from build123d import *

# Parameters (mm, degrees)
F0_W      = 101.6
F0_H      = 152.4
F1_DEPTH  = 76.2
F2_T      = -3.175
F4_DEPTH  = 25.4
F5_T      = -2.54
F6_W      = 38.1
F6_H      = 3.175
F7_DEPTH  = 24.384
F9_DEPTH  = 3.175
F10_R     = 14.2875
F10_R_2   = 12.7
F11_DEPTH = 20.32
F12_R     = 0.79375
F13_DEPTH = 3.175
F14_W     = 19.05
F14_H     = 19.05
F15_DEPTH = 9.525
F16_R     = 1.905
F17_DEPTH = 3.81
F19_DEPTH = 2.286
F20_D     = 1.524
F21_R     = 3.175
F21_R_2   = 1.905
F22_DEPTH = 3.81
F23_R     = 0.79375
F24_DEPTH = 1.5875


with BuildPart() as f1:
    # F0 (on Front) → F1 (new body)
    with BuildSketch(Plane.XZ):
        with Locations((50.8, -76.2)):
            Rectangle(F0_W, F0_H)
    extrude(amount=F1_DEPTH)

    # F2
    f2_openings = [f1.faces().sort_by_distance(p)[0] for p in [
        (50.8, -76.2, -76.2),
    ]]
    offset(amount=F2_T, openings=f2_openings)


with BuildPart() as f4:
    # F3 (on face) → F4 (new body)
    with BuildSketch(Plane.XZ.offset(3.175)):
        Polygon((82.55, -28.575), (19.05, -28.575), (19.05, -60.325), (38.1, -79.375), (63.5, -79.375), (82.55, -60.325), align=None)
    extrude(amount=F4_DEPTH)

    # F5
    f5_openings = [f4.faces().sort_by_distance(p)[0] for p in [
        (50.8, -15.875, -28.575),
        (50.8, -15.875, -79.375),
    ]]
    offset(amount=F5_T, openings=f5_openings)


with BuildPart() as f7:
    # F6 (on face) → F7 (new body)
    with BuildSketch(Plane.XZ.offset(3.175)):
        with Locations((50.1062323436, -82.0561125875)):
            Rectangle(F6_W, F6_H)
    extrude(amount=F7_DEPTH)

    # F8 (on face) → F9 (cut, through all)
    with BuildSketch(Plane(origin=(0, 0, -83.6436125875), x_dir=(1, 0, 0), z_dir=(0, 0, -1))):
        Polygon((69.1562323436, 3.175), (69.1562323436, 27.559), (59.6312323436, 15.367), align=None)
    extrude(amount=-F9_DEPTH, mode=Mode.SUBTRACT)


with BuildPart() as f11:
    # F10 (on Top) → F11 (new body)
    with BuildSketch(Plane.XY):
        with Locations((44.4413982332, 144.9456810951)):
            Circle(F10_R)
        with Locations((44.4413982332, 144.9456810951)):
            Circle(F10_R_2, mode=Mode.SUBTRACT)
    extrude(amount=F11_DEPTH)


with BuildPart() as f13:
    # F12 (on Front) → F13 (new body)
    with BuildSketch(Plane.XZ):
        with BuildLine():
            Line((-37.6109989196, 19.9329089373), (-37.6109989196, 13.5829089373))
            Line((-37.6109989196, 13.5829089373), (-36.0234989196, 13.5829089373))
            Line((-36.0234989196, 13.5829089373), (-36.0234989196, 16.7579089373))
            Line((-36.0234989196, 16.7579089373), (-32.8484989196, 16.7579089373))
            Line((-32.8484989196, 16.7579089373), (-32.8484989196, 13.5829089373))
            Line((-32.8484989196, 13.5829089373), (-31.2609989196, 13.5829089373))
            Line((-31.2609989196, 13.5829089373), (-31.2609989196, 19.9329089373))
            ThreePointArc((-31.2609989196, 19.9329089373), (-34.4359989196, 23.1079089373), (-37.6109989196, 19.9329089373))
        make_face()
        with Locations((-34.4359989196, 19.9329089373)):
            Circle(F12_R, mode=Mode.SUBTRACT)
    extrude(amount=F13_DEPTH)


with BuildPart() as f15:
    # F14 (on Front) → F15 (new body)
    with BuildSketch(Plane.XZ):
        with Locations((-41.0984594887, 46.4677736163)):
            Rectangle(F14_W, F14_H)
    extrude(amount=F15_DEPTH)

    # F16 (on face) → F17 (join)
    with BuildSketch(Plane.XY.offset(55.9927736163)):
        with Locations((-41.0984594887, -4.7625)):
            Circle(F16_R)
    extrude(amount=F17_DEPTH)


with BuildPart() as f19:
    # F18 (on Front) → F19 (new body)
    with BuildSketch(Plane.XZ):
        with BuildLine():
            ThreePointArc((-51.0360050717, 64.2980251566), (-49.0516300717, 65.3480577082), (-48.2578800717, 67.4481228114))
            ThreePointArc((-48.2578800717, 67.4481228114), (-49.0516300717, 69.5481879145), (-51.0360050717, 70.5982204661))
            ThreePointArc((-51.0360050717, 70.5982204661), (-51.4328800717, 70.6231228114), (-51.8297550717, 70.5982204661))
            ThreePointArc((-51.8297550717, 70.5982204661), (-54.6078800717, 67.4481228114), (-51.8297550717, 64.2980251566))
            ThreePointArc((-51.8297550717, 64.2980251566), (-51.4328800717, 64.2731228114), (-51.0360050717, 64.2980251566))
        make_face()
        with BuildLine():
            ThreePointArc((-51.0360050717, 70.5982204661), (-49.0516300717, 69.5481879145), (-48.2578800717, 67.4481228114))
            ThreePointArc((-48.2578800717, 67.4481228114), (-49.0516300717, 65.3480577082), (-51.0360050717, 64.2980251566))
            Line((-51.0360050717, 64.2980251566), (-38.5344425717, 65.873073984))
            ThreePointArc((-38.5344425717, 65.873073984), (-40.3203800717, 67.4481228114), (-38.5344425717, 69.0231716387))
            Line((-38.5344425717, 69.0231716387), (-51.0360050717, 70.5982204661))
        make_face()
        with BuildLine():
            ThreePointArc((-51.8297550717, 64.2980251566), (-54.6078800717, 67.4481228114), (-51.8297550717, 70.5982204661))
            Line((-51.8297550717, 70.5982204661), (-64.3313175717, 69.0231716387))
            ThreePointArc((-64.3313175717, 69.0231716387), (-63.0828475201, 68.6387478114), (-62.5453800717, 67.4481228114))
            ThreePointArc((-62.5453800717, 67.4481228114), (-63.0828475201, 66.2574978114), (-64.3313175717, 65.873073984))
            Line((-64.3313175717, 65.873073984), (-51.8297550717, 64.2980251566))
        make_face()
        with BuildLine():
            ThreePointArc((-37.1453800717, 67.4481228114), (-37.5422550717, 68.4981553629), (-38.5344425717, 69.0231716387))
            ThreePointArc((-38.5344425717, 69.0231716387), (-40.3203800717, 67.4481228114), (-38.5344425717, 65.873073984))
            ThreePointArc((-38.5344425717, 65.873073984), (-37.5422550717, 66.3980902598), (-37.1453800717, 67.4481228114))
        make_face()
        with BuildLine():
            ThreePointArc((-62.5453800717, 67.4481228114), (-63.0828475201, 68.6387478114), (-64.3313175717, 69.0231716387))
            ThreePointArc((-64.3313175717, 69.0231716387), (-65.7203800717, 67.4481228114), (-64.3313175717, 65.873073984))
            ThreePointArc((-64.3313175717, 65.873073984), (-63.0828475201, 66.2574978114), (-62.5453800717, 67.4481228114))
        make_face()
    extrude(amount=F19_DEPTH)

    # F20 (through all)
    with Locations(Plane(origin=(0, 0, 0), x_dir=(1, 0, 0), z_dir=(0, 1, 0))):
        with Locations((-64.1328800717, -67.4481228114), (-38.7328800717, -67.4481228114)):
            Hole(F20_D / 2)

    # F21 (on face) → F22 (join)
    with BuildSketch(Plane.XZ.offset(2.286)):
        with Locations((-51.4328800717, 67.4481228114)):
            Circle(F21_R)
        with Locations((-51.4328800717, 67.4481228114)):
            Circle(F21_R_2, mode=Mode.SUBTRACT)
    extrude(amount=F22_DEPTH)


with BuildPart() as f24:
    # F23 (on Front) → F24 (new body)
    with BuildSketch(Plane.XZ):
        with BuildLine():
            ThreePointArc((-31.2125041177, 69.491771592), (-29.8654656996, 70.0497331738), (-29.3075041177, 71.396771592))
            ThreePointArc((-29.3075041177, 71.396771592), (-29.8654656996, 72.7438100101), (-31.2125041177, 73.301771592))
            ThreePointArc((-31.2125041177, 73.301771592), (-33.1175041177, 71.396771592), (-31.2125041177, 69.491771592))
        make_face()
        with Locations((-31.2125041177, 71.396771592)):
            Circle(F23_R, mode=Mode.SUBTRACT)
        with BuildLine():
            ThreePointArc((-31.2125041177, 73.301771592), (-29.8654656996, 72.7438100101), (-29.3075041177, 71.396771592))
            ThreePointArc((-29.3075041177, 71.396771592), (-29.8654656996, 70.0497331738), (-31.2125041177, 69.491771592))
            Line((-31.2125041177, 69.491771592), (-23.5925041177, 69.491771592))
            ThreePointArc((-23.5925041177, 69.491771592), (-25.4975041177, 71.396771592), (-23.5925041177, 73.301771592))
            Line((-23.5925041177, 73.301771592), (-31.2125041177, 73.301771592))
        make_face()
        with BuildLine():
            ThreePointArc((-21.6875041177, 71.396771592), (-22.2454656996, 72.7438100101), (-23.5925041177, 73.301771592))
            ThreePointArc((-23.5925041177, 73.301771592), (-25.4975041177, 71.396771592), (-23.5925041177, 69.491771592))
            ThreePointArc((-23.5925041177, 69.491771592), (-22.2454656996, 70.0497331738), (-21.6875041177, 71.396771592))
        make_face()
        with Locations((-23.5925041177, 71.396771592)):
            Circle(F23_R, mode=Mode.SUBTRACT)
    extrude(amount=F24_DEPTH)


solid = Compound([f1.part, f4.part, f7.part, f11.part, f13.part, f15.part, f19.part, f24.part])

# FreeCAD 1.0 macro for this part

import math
import FreeCAD as App
import Part
import Sketcher
Q = App.Units.Quantity


def faces_at(feature, points):
    """Names of the faces that lie closest to the given points."""
    faces = feature.Shape.Faces
    near = lambda p: min(range(len(faces)), key=lambda i: faces[i].distToShape(Part.Vertex(*p))[0])
    return sorted({f"Face{near(p) + 1}" for p in points})


def add_polygon(sketch, points):
    """Adds a closed chain of lines whose ends are joined by coincident constraints."""
    first, n = sketch.GeometryCount, len(points)
    for a, b in zip(points, points[1:] + points[:1]):
        sketch.addGeometry(Part.LineSegment(App.Vector(*a, 0), App.Vector(*b, 0)), False)
    for i in range(n):
        sketch.addConstraint(Sketcher.Constraint("Coincident", first + i, 2, first + (i + 1) % n, 1))

doc = App.newDocument("Part")
body = doc.addObject("PartDesign::Body", "Body")

sketch1 = body.newObject("Sketcher::SketchObject", "Sketch")
sketch1.AttachmentSupport = (doc.getObject("XZ_Plane"), [""])
sketch1.MapMode = "FlatFace"
add_polygon(sketch1, [(0, 0), (0, -152), (102, -152), (102, 0)])
sketch1.addConstraint([
    Sketcher.Constraint("Vertical", 0),
    Sketcher.Constraint("Horizontal", 1),
    Sketcher.Constraint("Vertical", 2),
    Sketcher.Constraint("Horizontal", 3),
    Sketcher.Constraint("Coincident", 3, 2, -1, 1),
    Sketcher.Constraint("DistanceX", 1, 1, 1, 2, Q("4 in")),
    Sketcher.Constraint("DistanceY", 0, 2, 0, 1, Q("6 in")),
])
pad1 = body.newObject("PartDesign::Pad", "Pad")
pad1.Profile = sketch1
pad1.Length = Q("3 in")
doc.recompute()

thickness = body.newObject("PartDesign::Thickness", "Thickness")
thickness.Base = (pad1, faces_at(pad1, [(50.8, -76.2, -76.2)]))
thickness.Value = Q("0.125 in")
thickness.Reversed = True
thickness.Join = "Arc"
body2 = doc.addObject("PartDesign::Body", "Body001")

sketch2 = body2.newObject("Sketcher::SketchObject", "Sketch001")
sketch2.AttachmentSupport = (doc.getObject("XZ_Plane001"), [""])
sketch2.MapMode = "FlatFace"
sketch2.AttachmentOffset = App.Placement(App.Vector(0, 0, 0.125 * 25.4), App.Rotation())
add_polygon(sketch2, [(83, -29), (19, -29), (19, -60), (38, -79), (64, -79), (83, -60)])
sketch2.addConstraint([
    Sketcher.Constraint("Horizontal", 0),
    Sketcher.Constraint("Vertical", 1),
    Sketcher.Constraint("Horizontal", 3),
    Sketcher.Constraint("Vertical", 5),
    Sketcher.Constraint("Perpendicular", 2, 4),
    Sketcher.Constraint("Horizontal", 1, 2, 4, 2),
    Sketcher.Constraint("Equal", 2, 4),
    Sketcher.Constraint("DistanceX", 3, 1, 3, 2, Q("1 in")),
    Sketcher.Constraint("DistanceX", 0, 2, 0, 1, Q("2.5 in")),
    Sketcher.Constraint("DistanceY", 2, 2, 0, 2, Q("2 in")),
    Sketcher.Constraint("DistanceX", -1, 1, 2, 2, Q("1.5 in")),
    Sketcher.Constraint("DistanceY", 0, 2, -1, 1, Q("1.125 in")),
])
pad2 = body2.newObject("PartDesign::Pad", "Pad001")
pad2.Profile = sketch2
pad2.Length = Q("1 in")
doc.recompute()

thickness2 = body2.newObject("PartDesign::Thickness", "Thickness001")
thickness2.Base = (pad2, faces_at(pad2, [(50.8, -15.875, -28.575), (50.8, -15.875, -79.375)]))
thickness2.Value = Q("0.1 in")
thickness2.Reversed = True
thickness2.Join = "Arc"
body3 = doc.addObject("PartDesign::Body", "Body002")

sketch3 = body3.newObject("Sketcher::SketchObject", "Sketch002")
sketch3.AttachmentSupport = (doc.getObject("XZ_Plane002"), [""])
sketch3.MapMode = "FlatFace"
sketch3.AttachmentOffset = App.Placement(App.Vector(0, 0, 0.125 * 25.4), App.Rotation())
add_polygon(sketch3, [(31.1, -80.5), (31.1, -83.6), (69.2, -83.6), (69.2, -80.5)])
sketch3.addConstraint([
    Sketcher.Constraint("Vertical", 0),
    Sketcher.Constraint("Horizontal", 1),
    Sketcher.Constraint("Vertical", 2),
    Sketcher.Constraint("Horizontal", 3),
    Sketcher.Constraint("DistanceX", 1, 1, 1, 2, Q("1.5 in")),
    Sketcher.Constraint("DistanceY", 0, 2, 0, 1, Q("0.125 in")),
    Sketcher.Constraint("DistanceX", -1, 1, 0, 2, 31.056232),
    Sketcher.Constraint("DistanceY", 0, 2, -1, 1, 83.643613),
])
pad3 = body3.newObject("PartDesign::Pad", "Pad002")
pad3.Profile = sketch3
pad3.Length = Q("0.96 in")

sketch4 = body3.newObject("Sketcher::SketchObject", "Sketch003")
sketch4.AttachmentSupport = (doc.getObject("XY_Plane002"), [""])
sketch4.MapMode = "FlatFace"
sketch4.AttachmentOffset = App.Placement(App.Vector(0, 0, -83.643613), App.Rotation())
add_polygon(sketch4, [(69, -3), (69, -28), (60, -15)])
sketch4.addConstraint([
    Sketcher.Constraint("Vertical", 0),
    Sketcher.Constraint("Equal", 1, 2),
    Sketcher.Constraint("DistanceY", 0, 2, 0, 1, Q("0.96 in")),
    Sketcher.Constraint("DistanceY", 0, 2, -1, 1, Q("1.085 in")),
    Sketcher.Constraint("DistanceX", 1, 2, 0, 2, Q("0.375 in")),
    Sketcher.Constraint("DistanceX", -1, 1, 0, 2, 69.156232),
])
pocket1 = body3.newObject("PartDesign::Pocket", "Pocket")
pocket1.Profile = sketch4
pocket1.Type = "ThroughAll"
pocket1.Reversed = True
body4 = doc.addObject("PartDesign::Body", "Body003")

sketch5 = body4.newObject("Sketcher::SketchObject", "Sketch004")
sketch5.AttachmentSupport = (doc.getObject("XY_Plane003"), [""])
sketch5.MapMode = "FlatFace"
sketch5.addGeometry([
    Part.Circle(App.Vector(44, 145, 0), App.Vector(0, 0, 1), 14),
    Part.Circle(App.Vector(44, 145, 0), App.Vector(0, 0, 1), 13),
], False)
sketch5.addConstraint([
    Sketcher.Constraint("Coincident", 1, 3, 0, 3),
    Sketcher.Constraint("Diameter", 1, Q("1 in")),
    Sketcher.Constraint("Diameter", 0, Q("1.125 in")),
    Sketcher.Constraint("DistanceX", -1, 1, 0, 3, 44.441398),
    Sketcher.Constraint("DistanceY", -1, 1, 0, 3, 144.945681),
])
pad4 = body4.newObject("PartDesign::Pad", "Pad003")
pad4.Profile = sketch5
pad4.Length = Q("0.8 in")
body5 = doc.addObject("PartDesign::Body", "Body004")

sketch6 = body5.newObject("Sketcher::SketchObject", "Sketch005")
sketch6.AttachmentSupport = (doc.getObject("XZ_Plane004"), [""])
sketch6.MapMode = "FlatFace"
sketch6.addGeometry([
    Part.LineSegment(App.Vector(-37.6, 19.9, 0), App.Vector(-37.6, 13.6, 0)),
    Part.LineSegment(App.Vector(-37.6, 13.6, 0), App.Vector(-36, 13.6, 0)),
    Part.LineSegment(App.Vector(-36, 13.6, 0), App.Vector(-36, 16.8, 0)),
    Part.LineSegment(App.Vector(-36, 16.8, 0), App.Vector(-32.8, 16.8, 0)),
    Part.LineSegment(App.Vector(-32.8, 16.8, 0), App.Vector(-32.8, 13.6, 0)),
    Part.LineSegment(App.Vector(-32.8, 13.6, 0), App.Vector(-31.3, 13.6, 0)),
    Part.LineSegment(App.Vector(-31.3, 13.6, 0), App.Vector(-31.3, 19.9, 0)),
    Part.ArcOfCircle(Part.Circle(App.Vector(-34.4, 19.9, 0), App.Vector(0, 0, 1), 3.2), math.radians(0), math.radians(180)),
    Part.Circle(App.Vector(-34.4, 19.9, 0), App.Vector(0, 0, 1), 0.8),
], False)
sketch6.addConstraint([
    Sketcher.Constraint("Coincident", 0, 2, 1, 1),
    Sketcher.Constraint("Coincident", 1, 2, 2, 1),
    Sketcher.Constraint("Coincident", 2, 2, 3, 1),
    Sketcher.Constraint("Coincident", 3, 2, 4, 1),
    Sketcher.Constraint("Coincident", 4, 2, 5, 1),
    Sketcher.Constraint("Coincident", 5, 2, 6, 1),
    Sketcher.Constraint("Tangent", 6, 2, 7, 1),
    Sketcher.Constraint("Tangent", 7, 2, 0, 1),
    Sketcher.Constraint("Vertical", 0),
    Sketcher.Constraint("Horizontal", 1),
    Sketcher.Constraint("Vertical", 2),
    Sketcher.Constraint("Horizontal", 3),
    Sketcher.Constraint("Vertical", 4),
    Sketcher.Constraint("Horizontal", 5),
    Sketcher.Constraint("Vertical", 6),
    Sketcher.Constraint("Coincident", 8, 3, 7, 3),
    Sketcher.Constraint("Horizontal", 1, 2, 4, 2),
    Sketcher.Constraint("Equal", 1, 5),
    Sketcher.Constraint("Equal", 3, 2),
    Sketcher.Constraint("Diameter", 8, Q("0.0625 in")),
    Sketcher.Constraint("Radius", 7, Q("0.125 in")),
    Sketcher.Constraint("DistanceY", 0, 2, 0, 1, Q("0.25 in")),
    Sketcher.Constraint("DistanceX", 1, 1, 1, 2, Q("0.0625 in")),
    Sketcher.Constraint("DistanceX", 7, 3, -1, 1, 34.435999),
    Sketcher.Constraint("DistanceY", -1, 1, 7, 3, 19.932909),
])
pad5 = body5.newObject("PartDesign::Pad", "Pad004")
pad5.Profile = sketch6
pad5.Length = Q("0.125 in")
body6 = doc.addObject("PartDesign::Body", "Body005")

sketch7 = body6.newObject("Sketcher::SketchObject", "Sketch006")
sketch7.AttachmentSupport = (doc.getObject("XZ_Plane005"), [""])
sketch7.MapMode = "FlatFace"
add_polygon(sketch7, [(-51, 56), (-51, 37), (-32, 37), (-32, 56)])
sketch7.addConstraint([
    Sketcher.Constraint("Vertical", 0),
    Sketcher.Constraint("Horizontal", 1),
    Sketcher.Constraint("Vertical", 2),
    Sketcher.Constraint("Horizontal", 3),
    Sketcher.Constraint("Equal", 3, 0),
    Sketcher.Constraint("DistanceX", 1, 1, 1, 2, Q("0.75 in")),
    Sketcher.Constraint("DistanceX", 0, 2, -1, 1, 50.623459),
    Sketcher.Constraint("DistanceY", -1, 1, 0, 2, 36.942774),
])
pad6 = body6.newObject("PartDesign::Pad", "Pad005")
pad6.Profile = sketch7
pad6.Length = Q("0.375 in")

sketch8 = body6.newObject("Sketcher::SketchObject", "Sketch007")
sketch8.AttachmentSupport = (doc.getObject("XY_Plane005"), [""])
sketch8.MapMode = "FlatFace"
sketch8.AttachmentOffset = App.Placement(App.Vector(0, 0, 55.992774), App.Rotation())
sketch8.addGeometry(Part.Circle(App.Vector(-41.1, -4.8, 0), App.Vector(0, 0, 1), 1.9), False)
sketch8.addConstraint([
    Sketcher.Constraint("Diameter", 0, Q("0.15 in")),
    Sketcher.Constraint("DistanceY", 0, 3, -1, 1, Q("0.1875 in")),
    Sketcher.Constraint("DistanceX", 0, 3, -1, 1, 41.098459),
])
pad7 = body6.newObject("PartDesign::Pad", "Pad006")
pad7.Profile = sketch8
pad7.Length = Q("0.15 in")
body7 = doc.addObject("PartDesign::Body", "Body006")

sketch9 = body7.newObject("Sketcher::SketchObject", "Sketch008")
sketch9.AttachmentSupport = (doc.getObject("XZ_Plane006"), [""])
sketch9.MapMode = "FlatFace"
sketch9.addGeometry([
    Part.ArcOfCircle(Part.Circle(App.Vector(-51.4, 67.4, 0), App.Vector(0, 0, 1), 3.2), math.radians(82.82), math.radians(97.18)),
    Part.LineSegment(App.Vector(-51.8, 70.6, 0), App.Vector(-64.3, 69, 0)),
    Part.ArcOfCircle(Part.Circle(App.Vector(-64.1, 67.4, 0), App.Vector(0, 0, 1), 1.6), math.radians(97), math.radians(263)),
    Part.LineSegment(App.Vector(-64.3, 65.9, 0), App.Vector(-51.8, 64.3, 0)),
    Part.ArcOfCircle(Part.Circle(App.Vector(-51.4, 67.4, 0), App.Vector(0, 0, 1), 3.2), math.radians(-97.18), math.radians(-82.82)),
    Part.LineSegment(App.Vector(-51, 64.3, 0), App.Vector(-38.5, 65.9, 0)),
    Part.ArcOfCircle(Part.Circle(App.Vector(-38.7, 67.4, 0), App.Vector(0, 0, 1), 1.6), math.radians(-83), math.radians(0)),
    Part.ArcOfCircle(Part.Circle(App.Vector(-38.7, 67.4, 0), App.Vector(0, 0, 1), 1.6), math.radians(0), math.radians(83)),
    Part.LineSegment(App.Vector(-38.5, 69, 0), App.Vector(-51, 70.6, 0)),
], False)
sketch9.addConstraint([
    Sketcher.Constraint("Tangent", 0, 2, 1, 1),
    Sketcher.Constraint("Tangent", 1, 2, 2, 1),
    Sketcher.Constraint("Tangent", 2, 2, 3, 1),
    Sketcher.Constraint("Tangent", 3, 2, 4, 1),
    Sketcher.Constraint("Tangent", 4, 2, 5, 1),
    Sketcher.Constraint("Tangent", 5, 2, 6, 1),
    Sketcher.Constraint("Tangent", 6, 2, 7, 1),
    Sketcher.Constraint("Tangent", 7, 2, 8, 1),
    Sketcher.Constraint("Tangent", 8, 2, 0, 1),
    Sketcher.Constraint("Coincident", 4, 3, 0, 3),
    Sketcher.Constraint("Equal", 0, 4),
    Sketcher.Constraint("Equal", 2, 6),
    Sketcher.Constraint("Equal", 6, 7),
    Sketcher.Constraint("Parallel", 1, 5),
    Sketcher.Constraint("Parallel", 3, 8),
    Sketcher.Constraint("Horizontal", 0, 3, 2, 3),
    Sketcher.Constraint("Horizontal", 7, 3, 6, 2),
    Sketcher.Constraint("Radius", 0, Q("0.125 in")),
    Sketcher.Constraint("Radius", 2, Q("0.0625 in")),
    Sketcher.Constraint("DistanceX", 2, 3, 6, 3, Q("1 in")),
    Sketcher.Constraint("DistanceX", 0, 3, -1, 1, 51.43288),
    Sketcher.Constraint("DistanceY", -1, 1, 0, 2, 70.59822),
])
pad8 = body7.newObject("PartDesign::Pad", "Pad007")
pad8.Profile = sketch9
pad8.Length = Q("0.09 in")

sketch10 = body7.newObject("Sketcher::SketchObject", "Sketch009")
sketch10.AttachmentSupport = (doc.getObject("XZ_Plane006"), [""])
sketch10.MapMode = "FlatFace"
sketch10.addGeometry([
    Part.Circle(App.Vector(-64.1, 67.4, 0), App.Vector(0, 0, 1), 0.8),
    Part.Circle(App.Vector(-38.7, 67.4, 0), App.Vector(0, 0, 1), 0.8),
], False)
sketch10.addConstraint([
    Sketcher.Constraint("Equal", 0, 1),
    Sketcher.Constraint("Horizontal", 0, 3, 1, 3),
    Sketcher.Constraint("Diameter", 0, Q("0.06 in")),
    Sketcher.Constraint("DistanceX", 0, 3, 1, 3, Q("1 in")),
    Sketcher.Constraint("DistanceX", 0, 3, -1, 1, 64.13288),
    Sketcher.Constraint("DistanceY", -1, 1, 0, 3, 67.448123),
])
doc.recompute()
hole = body7.newObject("PartDesign::Hole", "Hole")
hole.Profile = sketch10
hole.ThreadType = "None"
hole.Diameter = Q("0.06 in")
hole.DepthType = "ThroughAll"
hole.Reversed = True

sketch11 = body7.newObject("Sketcher::SketchObject", "Sketch010")
sketch11.AttachmentSupport = (doc.getObject("XZ_Plane006"), [""])
sketch11.MapMode = "FlatFace"
sketch11.AttachmentOffset = App.Placement(App.Vector(0, 0, 0.09 * 25.4), App.Rotation())
sketch11.addGeometry([
    Part.Circle(App.Vector(-51.4, 67.4, 0), App.Vector(0, 0, 1), 3.2),
    Part.Circle(App.Vector(-51.4, 67.4, 0), App.Vector(0, 0, 1), 1.9),
], False)
sketch11.addConstraint([
    Sketcher.Constraint("Coincident", 1, 3, 0, 3),
    Sketcher.Constraint("Diameter", 0, Q("0.25 in")),
    Sketcher.Constraint("Diameter", 1, Q("0.15 in")),
    Sketcher.Constraint("DistanceX", 0, 3, -1, 1, 51.43288),
    Sketcher.Constraint("DistanceY", -1, 1, 0, 3, 67.448123),
])
pad9 = body7.newObject("PartDesign::Pad", "Pad008")
pad9.Profile = sketch11
pad9.Length = Q("0.15 in")
body8 = doc.addObject("PartDesign::Body", "Body007")

sketch12 = body8.newObject("Sketcher::SketchObject", "Sketch011")
sketch12.AttachmentSupport = (doc.getObject("XZ_Plane007"), [""])
sketch12.MapMode = "FlatFace"
sketch12.addGeometry([
    Part.ArcOfCircle(Part.Circle(App.Vector(-31.2, 71.4, 0), App.Vector(0, 0, 1), 1.9), math.radians(90), math.radians(270)),
    Part.LineSegment(App.Vector(-31.2, 69.5, 0), App.Vector(-23.6, 69.5, 0)),
    Part.ArcOfCircle(Part.Circle(App.Vector(-23.6, 71.4, 0), App.Vector(0, 0, 1), 1.9), math.radians(-90), math.radians(0)),
    Part.ArcOfCircle(Part.Circle(App.Vector(-23.6, 71.4, 0), App.Vector(0, 0, 1), 1.9), math.radians(0), math.radians(90)),
    Part.LineSegment(App.Vector(-23.6, 73.3, 0), App.Vector(-31.2, 73.3, 0)),
    Part.Circle(App.Vector(-31.2, 71.4, 0), App.Vector(0, 0, 1), 0.8),
    Part.Circle(App.Vector(-23.6, 71.4, 0), App.Vector(0, 0, 1), 0.8),
], False)
sketch12.addConstraint([
    Sketcher.Constraint("Tangent", 0, 2, 1, 1),
    Sketcher.Constraint("Tangent", 1, 2, 2, 1),
    Sketcher.Constraint("Tangent", 2, 2, 3, 1),
    Sketcher.Constraint("Tangent", 3, 2, 4, 1),
    Sketcher.Constraint("Tangent", 4, 2, 0, 1),
    Sketcher.Constraint("Horizontal", 1),
    Sketcher.Constraint("Horizontal", 4),
    Sketcher.Constraint("Coincident", 5, 3, 0, 3),
    Sketcher.Constraint("Coincident", 6, 3, 2, 3),
    Sketcher.Constraint("Equal", 0, 2),
    Sketcher.Constraint("Equal", 5, 6),
    Sketcher.Constraint("Horizontal", 6, 3, 2, 2),
    Sketcher.Constraint("Diameter", 5, Q("0.0625 in")),
    Sketcher.Constraint("DistanceX", 1, 1, 1, 2, Q("0.3 in")),
    Sketcher.Constraint("Radius", 0, Q("0.075 in")),
    Sketcher.Constraint("DistanceY", -1, 1, 0, 3, 71.396772),
    Sketcher.Constraint("DistanceX", 0, 3, -1, 1, 31.212504),
])
pad10 = body8.newObject("PartDesign::Pad", "Pad009")
pad10.Profile = sketch12
pad10.Length = Q("0.0625 in")

doc.recompute()
